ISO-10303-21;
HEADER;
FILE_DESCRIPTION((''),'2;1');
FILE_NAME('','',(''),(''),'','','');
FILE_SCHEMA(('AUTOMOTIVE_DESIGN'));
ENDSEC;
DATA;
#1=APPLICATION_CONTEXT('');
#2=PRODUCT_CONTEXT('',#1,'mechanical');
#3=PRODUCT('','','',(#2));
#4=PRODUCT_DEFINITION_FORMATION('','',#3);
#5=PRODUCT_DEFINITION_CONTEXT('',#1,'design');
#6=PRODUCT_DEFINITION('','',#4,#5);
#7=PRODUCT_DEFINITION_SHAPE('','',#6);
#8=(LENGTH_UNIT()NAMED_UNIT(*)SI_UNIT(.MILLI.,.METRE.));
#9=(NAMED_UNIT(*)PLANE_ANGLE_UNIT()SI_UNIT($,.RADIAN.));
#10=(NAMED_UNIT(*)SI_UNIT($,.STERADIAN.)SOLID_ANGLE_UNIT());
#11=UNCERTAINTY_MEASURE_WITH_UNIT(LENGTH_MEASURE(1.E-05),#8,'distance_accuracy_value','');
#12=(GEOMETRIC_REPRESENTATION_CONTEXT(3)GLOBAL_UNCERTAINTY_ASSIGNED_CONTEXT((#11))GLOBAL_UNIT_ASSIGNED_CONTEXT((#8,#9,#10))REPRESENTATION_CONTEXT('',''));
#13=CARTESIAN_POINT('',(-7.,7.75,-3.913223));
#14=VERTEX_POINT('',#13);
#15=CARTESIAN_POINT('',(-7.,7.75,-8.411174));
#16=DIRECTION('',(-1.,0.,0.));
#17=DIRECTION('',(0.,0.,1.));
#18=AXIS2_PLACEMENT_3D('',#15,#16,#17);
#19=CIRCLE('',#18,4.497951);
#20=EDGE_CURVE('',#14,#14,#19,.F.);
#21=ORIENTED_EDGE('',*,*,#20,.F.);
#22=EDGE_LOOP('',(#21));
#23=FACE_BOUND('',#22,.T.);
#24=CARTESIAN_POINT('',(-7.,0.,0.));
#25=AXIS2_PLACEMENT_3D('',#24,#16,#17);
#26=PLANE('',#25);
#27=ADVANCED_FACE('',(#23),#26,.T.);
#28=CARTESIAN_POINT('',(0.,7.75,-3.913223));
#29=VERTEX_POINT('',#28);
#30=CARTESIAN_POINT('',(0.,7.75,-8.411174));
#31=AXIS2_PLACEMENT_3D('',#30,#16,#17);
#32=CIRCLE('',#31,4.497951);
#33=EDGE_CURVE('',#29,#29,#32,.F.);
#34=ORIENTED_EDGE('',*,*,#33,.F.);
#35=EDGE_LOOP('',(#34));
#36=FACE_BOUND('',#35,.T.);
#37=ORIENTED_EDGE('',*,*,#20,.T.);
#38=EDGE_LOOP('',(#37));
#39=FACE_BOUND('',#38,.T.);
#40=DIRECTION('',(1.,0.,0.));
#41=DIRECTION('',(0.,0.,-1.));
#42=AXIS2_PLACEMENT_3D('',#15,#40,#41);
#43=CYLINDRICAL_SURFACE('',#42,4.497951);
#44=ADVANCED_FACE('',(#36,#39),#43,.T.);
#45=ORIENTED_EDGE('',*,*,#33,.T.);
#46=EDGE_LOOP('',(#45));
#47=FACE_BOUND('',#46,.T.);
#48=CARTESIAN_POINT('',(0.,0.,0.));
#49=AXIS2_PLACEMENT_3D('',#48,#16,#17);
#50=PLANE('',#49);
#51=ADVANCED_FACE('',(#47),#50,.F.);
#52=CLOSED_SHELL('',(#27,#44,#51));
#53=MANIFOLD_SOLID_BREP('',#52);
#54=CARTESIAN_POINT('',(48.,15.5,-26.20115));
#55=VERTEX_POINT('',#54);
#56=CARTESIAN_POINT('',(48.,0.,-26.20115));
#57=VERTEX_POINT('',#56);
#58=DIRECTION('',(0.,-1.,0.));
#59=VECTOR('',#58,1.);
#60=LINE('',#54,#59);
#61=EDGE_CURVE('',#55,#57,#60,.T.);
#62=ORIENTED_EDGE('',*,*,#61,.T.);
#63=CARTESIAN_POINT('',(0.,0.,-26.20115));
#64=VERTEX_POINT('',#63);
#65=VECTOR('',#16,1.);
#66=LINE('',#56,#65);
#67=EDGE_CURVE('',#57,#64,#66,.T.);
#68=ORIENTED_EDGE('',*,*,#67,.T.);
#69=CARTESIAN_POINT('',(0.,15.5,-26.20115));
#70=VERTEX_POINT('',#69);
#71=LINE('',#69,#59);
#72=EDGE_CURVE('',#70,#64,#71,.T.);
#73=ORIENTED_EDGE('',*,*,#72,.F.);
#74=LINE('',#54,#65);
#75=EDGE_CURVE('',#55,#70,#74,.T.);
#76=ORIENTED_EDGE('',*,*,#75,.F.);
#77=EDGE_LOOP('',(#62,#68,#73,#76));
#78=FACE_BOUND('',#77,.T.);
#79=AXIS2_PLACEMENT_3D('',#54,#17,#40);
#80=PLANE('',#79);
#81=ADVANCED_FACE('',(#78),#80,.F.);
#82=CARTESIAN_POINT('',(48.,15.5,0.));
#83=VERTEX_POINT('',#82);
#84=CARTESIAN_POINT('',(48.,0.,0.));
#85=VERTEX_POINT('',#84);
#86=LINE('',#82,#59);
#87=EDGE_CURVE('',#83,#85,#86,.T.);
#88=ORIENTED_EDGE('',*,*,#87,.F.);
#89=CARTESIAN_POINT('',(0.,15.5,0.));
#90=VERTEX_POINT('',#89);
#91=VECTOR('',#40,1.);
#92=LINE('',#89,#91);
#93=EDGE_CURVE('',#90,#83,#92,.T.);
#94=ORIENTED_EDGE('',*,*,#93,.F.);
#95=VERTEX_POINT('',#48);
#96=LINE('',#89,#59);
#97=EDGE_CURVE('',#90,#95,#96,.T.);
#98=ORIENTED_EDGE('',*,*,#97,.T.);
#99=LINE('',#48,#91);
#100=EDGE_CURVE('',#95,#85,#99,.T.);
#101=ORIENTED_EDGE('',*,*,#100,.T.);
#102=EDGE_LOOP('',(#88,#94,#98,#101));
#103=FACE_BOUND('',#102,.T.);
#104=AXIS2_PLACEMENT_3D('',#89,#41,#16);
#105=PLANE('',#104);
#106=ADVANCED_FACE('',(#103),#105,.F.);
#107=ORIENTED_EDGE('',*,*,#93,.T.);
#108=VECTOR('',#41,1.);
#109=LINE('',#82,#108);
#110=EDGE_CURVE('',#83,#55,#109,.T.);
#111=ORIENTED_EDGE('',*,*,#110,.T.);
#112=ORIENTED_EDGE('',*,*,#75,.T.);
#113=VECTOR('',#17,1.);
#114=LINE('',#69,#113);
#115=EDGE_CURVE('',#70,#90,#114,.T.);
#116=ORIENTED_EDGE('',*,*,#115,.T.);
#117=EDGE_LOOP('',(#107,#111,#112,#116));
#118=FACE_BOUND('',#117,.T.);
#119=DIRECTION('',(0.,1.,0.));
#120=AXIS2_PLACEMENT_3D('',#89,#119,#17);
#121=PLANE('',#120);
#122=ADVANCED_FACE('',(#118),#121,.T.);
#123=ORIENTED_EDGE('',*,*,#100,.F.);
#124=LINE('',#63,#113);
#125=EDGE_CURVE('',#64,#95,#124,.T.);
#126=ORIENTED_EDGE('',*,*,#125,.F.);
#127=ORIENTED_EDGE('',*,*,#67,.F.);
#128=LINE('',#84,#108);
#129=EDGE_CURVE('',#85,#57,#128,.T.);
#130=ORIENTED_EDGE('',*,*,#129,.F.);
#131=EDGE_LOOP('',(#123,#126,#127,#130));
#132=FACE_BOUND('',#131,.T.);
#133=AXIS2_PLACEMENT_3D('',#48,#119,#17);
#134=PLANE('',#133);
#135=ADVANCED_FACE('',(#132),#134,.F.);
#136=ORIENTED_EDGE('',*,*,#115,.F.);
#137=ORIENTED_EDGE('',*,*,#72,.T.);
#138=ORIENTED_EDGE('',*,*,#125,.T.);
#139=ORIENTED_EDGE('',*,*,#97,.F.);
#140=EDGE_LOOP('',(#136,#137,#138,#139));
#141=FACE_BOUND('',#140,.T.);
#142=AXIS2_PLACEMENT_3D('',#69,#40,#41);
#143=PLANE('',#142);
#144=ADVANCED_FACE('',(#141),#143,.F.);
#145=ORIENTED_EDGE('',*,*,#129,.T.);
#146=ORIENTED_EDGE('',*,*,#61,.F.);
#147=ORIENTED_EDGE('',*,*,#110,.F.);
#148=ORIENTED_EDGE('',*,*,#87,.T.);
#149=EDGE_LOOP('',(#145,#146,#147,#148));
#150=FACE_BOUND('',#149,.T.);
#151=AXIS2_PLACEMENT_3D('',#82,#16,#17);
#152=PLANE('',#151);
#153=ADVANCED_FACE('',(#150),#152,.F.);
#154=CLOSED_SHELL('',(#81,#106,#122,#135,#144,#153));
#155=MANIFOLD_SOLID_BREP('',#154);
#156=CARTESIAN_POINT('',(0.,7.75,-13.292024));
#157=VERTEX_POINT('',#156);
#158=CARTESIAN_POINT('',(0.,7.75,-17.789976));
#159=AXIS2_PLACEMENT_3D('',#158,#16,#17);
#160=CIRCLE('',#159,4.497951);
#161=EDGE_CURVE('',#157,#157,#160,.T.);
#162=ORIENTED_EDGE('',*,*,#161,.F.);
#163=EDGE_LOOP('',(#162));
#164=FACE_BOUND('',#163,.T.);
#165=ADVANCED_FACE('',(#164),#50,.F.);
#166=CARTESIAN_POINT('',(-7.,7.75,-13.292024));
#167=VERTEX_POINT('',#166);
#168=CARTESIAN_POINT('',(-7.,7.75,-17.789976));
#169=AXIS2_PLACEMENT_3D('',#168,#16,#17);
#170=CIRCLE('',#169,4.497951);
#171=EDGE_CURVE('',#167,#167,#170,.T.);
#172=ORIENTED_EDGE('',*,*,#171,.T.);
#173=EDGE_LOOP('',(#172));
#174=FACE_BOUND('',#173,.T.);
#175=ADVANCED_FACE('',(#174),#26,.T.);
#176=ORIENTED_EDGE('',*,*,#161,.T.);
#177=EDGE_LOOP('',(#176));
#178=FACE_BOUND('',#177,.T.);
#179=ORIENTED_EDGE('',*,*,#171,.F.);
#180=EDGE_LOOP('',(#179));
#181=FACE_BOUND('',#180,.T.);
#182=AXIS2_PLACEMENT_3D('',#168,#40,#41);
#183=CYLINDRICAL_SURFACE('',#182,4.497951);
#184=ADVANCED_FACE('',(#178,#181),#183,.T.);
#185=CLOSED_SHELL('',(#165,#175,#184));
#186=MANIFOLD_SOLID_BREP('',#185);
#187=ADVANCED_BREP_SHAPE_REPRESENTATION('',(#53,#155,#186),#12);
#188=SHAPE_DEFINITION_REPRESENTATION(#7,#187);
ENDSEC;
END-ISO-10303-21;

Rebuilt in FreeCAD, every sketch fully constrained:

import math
import FreeCAD as App
import Part
import Sketcher
from FreeCAD import Vector


def add_polygon(sketch, points):
    """Adds a closed chain of lines whose ends are joined by coincident constraints."""
    first, n = sketch.GeometryCount, len(points)
    for a, b in zip(points, points[1:] + points[:1]):
        sketch.addGeometry(Part.LineSegment(App.Vector(*a, 0), App.Vector(*b, 0)), False)
    for i in range(n):
        sketch.addConstraint(Sketcher.Constraint("Coincident", first + i, 2, first + (i + 1) % n, 1))

doc = App.newDocument("Part")
params = doc.addObject("Spreadsheet::Sheet", "Params")
for row, (alias, value) in enumerate([
    ("sketch1_width", "48 mm"),
    ("pad1_length", "15.5 mm"),
    ("pad2_length", "7 mm"),
], start=1):
    params.set(f"A{row}", alias)
    params.set(f"B{row}", "=" + value)
    params.setAlias(f"B{row}", alias)

body = doc.addObject("PartDesign::Body", "Body")

# Sketch on XZ plane
sketch1 = body.newObject("Sketcher::SketchObject", "Sketch")
sketch1.AttachmentSupport = (doc.getObject("XZ_Plane"), [""])
sketch1.MapMode = "FlatFace"
add_polygon(sketch1, [(0, -26), (0, 0), (48, 0), (48, -26)])  # lines 0-3
sketch1.addConstraint([
    Sketcher.Constraint("Vertical", 0),
    Sketcher.Constraint("Horizontal", 1),
    Sketcher.Constraint("Vertical", 2),
    Sketcher.Constraint("Horizontal", 3),
    Sketcher.Constraint("Coincident", 0, 2, -1, 1),
    Sketcher.Constraint("DistanceX", 1, 1, 1, 2, 48.0),
    Sketcher.Constraint("DistanceY", 0, 1, 0, 2, 26.20115),
])
sketch1.setExpression("Constraints[9]", "Params.sketch1_width")
pad1 = body.newObject("PartDesign::Pad", "Pad")
pad1.Profile = sketch1
pad1.setExpression("Length", "Params.pad1_length")
pad1.Reversed = True
body2 = doc.addObject("PartDesign::Body", "Body001")
body2.AllowCompound = True

# Sketch on YZ plane
sketch2 = body2.newObject("Sketcher::SketchObject", "Sketch001")
sketch2.AttachmentSupport = (doc.getObject("YZ_Plane001"), [""])
sketch2.MapMode = "FlatFace"
sketch2.addGeometry([
    Part.ArcOfCircle(Part.Circle(Vector(7.7, -17.8, 0), Vector(0, 0, 1), 4.5), math.radians(-90), math.radians(90)),
    Part.ArcOfCircle(Part.Circle(Vector(7.8, -17.8, 0), Vector(0, 0, 1), 4.5), math.radians(90), math.radians(270)),
    Part.ArcOfCircle(Part.Circle(Vector(7.7, -8.4, 0), Vector(0, 0, 1), 4.5), math.radians(-90), math.radians(90)),
    Part.ArcOfCircle(Part.Circle(Vector(7.8, -8.4, 0), Vector(0, 0, 1), 4.5), math.radians(90), math.radians(270)),
], False)
sketch2.addConstraint([
    Sketcher.Constraint("Tangent", 0, 1, 1, 2),
    Sketcher.Constraint("Coincident", 1, 1, 0, 2),
    Sketcher.Constraint("Tangent", 2, 1, 3, 2),
    Sketcher.Constraint("Coincident", 3, 1, 2, 2),
    Sketcher.Constraint("Equal", 1, 2),
    Sketcher.Constraint("Vertical", 1, 3, 2, 3),
    Sketcher.Constraint("Vertical", 3, 3, 0, 1),
    Sketcher.Constraint("Vertical", 0, 1, 1, 1),
    Sketcher.Constraint("Vertical", 1, 1, 2, 1),
    Sketcher.Constraint("Vertical", 2, 1, 3, 1),
    Sketcher.Constraint("DistanceX", -1, 1, 0, 3, 7.75),
    Sketcher.Constraint("Radius", 0, 4.497951),
    Sketcher.Constraint("DistanceY", 0, 3, 2, 3, 9.378801),
    Sketcher.Constraint("DistanceY", 0, 3, -1, 1, 17.789976),
])
pad2 = body2.newObject("PartDesign::Pad", "Pad001")
pad2.Profile = sketch2
pad2.setExpression("Length", "Params.pad2_length")
pad2.Reversed = True

doc.recompute()
